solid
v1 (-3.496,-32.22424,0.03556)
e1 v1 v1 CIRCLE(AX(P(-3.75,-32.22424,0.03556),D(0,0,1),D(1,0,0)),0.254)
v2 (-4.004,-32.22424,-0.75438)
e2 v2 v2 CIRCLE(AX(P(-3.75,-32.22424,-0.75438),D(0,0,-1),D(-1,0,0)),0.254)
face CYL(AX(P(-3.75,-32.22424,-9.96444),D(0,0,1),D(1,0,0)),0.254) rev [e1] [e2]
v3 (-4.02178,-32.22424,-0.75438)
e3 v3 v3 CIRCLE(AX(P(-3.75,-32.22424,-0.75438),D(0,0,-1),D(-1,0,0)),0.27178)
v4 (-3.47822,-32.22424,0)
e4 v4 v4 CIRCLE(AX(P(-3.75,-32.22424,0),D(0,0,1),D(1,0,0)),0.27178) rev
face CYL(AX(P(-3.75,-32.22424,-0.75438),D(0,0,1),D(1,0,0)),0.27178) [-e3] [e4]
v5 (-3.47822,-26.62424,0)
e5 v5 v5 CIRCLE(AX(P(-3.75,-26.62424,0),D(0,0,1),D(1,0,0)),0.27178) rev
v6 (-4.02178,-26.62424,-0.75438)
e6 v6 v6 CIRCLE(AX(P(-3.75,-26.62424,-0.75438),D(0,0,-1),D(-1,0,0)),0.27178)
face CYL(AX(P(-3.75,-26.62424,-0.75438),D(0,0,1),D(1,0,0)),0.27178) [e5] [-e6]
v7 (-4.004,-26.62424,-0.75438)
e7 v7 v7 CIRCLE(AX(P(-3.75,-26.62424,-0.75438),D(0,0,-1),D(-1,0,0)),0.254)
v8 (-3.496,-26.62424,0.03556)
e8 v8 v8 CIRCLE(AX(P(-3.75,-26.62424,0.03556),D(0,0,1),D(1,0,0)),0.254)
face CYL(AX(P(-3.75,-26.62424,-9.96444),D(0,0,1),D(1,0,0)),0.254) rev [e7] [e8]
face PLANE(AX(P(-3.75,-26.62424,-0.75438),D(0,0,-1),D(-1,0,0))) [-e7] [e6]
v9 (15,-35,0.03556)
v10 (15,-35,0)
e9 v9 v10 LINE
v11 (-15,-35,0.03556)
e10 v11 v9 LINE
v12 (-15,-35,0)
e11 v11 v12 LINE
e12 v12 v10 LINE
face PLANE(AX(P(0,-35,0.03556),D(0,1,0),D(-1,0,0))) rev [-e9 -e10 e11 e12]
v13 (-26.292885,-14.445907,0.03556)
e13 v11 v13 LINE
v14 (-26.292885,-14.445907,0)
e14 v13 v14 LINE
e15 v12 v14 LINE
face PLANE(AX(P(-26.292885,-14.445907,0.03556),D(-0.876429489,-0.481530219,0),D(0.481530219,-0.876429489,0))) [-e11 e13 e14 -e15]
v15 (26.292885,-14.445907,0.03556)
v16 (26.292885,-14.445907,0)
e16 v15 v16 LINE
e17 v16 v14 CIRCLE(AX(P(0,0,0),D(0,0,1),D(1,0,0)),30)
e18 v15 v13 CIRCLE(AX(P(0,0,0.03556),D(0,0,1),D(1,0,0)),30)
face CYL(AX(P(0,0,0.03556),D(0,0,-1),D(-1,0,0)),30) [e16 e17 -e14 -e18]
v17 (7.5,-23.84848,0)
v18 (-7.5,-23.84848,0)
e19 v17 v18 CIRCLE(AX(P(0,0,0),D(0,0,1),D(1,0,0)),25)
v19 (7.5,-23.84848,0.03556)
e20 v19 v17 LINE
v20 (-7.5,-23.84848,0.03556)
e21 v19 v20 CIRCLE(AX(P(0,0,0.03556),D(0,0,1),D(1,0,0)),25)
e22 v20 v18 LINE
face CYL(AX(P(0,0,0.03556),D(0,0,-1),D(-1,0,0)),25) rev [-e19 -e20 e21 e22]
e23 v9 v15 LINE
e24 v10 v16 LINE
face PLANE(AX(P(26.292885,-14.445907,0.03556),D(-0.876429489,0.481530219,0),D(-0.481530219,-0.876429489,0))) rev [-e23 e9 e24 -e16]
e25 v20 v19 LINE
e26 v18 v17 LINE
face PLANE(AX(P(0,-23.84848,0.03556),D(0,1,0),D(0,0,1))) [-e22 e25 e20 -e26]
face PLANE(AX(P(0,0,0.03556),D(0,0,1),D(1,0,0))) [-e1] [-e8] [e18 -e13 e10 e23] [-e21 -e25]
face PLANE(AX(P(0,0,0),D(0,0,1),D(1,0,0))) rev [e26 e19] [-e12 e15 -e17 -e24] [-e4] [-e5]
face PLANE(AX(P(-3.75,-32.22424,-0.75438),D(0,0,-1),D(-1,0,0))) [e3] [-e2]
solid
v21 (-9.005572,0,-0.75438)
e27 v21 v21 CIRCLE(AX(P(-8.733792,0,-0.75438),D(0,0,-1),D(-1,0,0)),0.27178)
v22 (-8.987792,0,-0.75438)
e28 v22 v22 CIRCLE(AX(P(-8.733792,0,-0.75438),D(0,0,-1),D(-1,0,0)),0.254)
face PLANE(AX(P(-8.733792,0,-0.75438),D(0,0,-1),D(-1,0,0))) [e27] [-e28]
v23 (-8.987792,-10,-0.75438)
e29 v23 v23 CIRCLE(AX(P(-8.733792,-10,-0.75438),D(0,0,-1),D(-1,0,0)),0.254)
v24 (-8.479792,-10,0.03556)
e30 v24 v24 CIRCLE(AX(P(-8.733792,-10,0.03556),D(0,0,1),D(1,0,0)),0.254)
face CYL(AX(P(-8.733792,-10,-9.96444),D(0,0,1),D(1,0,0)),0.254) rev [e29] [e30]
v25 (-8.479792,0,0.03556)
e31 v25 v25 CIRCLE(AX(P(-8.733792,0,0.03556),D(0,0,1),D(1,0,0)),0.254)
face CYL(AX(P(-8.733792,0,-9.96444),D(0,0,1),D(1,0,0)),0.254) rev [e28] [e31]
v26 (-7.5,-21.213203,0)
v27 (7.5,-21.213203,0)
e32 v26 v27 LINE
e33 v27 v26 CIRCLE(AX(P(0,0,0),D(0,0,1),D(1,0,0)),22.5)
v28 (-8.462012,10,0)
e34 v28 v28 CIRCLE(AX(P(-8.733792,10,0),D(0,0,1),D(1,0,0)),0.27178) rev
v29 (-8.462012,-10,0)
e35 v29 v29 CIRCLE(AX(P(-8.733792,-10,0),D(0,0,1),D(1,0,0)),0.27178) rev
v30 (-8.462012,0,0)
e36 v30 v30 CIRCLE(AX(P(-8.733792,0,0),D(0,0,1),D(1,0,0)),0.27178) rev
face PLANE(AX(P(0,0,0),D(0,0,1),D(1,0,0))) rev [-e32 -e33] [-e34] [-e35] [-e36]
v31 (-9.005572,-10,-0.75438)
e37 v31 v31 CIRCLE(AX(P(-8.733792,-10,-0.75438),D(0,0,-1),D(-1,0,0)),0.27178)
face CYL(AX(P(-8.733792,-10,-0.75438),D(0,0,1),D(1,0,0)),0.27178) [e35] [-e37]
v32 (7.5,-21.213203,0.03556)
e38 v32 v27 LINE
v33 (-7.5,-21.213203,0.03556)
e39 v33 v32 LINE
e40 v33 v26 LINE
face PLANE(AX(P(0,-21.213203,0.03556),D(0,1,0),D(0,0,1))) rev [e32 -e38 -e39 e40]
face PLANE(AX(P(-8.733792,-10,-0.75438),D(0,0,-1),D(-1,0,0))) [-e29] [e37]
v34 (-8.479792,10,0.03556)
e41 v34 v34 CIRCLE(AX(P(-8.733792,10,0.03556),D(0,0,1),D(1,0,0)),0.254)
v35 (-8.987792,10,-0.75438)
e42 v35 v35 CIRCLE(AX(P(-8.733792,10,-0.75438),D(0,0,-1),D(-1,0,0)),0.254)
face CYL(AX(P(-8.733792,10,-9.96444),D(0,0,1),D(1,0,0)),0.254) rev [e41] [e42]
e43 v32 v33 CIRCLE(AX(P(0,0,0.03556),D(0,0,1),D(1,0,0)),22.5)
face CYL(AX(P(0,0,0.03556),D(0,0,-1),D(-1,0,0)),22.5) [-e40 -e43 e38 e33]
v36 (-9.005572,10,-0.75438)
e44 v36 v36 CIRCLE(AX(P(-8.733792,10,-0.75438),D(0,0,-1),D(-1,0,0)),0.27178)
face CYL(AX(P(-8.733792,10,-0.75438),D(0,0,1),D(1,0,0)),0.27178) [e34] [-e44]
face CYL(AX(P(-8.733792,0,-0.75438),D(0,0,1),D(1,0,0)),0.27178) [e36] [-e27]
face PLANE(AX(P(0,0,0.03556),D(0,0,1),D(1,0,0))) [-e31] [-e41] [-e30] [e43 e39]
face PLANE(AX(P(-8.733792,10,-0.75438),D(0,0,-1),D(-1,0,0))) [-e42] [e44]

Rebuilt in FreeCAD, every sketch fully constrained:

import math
import FreeCAD as App
import Part
import Sketcher

doc = App.newDocument("Part")
body = doc.addObject("PartDesign::Body", "Body")

# Sketch on XY plane
sketch1 = doc.addObject("Sketcher::SketchObject", "Sketch")
body.addObject(sketch1)
sketch1.AttachmentSupport = (doc.XY_Plane, [""])
sketch1.MapMode = "FlatFace"
sketch1.addGeometry([
    Part.LineSegment(App.Vector(-7.5, -21.213203, 0), App.Vector(7.5, -21.213203, 0)),
    Part.ArcOfCircle(Part.Circle(App.Vector(0, 0, 0), App.Vector(0, 0, 1), 22.5), math.radians(-70.528779), math.radians(250.528779)),
], False)
sketch1.addConstraint([
    Sketcher.Constraint("Coincident", 0, 1, 1, 2),
    Sketcher.Constraint("Coincident", 1, 1, 0, 2),
    Sketcher.Constraint("Horizontal", 0),
    Sketcher.Constraint("Coincident", 1, 3, -1, 1),
    Sketcher.Constraint("Radius", 1, 22.5),
    Sketcher.Constraint("DistanceX", 0, 1, 0, 2, 15.0),
])
pad1 = doc.addObject("PartDesign::Pad", "Pad")
body.addObject(pad1)
pad1.Profile = sketch1
pad1.Length = 0.03556
body2 = doc.addObject("PartDesign::Body", "Body001")

# Sketch on XY plane
sketch2 = doc.addObject("Sketcher::SketchObject", "Sketch001")
body2.addObject(sketch2)
sketch2.AttachmentSupport = (doc.getObject("XY_Plane001"), [""])
sketch2.MapMode = "FlatFace"
sketch2.addGeometry([
    Part.LineSegment(App.Vector(-15, -35, 0), App.Vector(15, -35, 0)),  # 0
    Part.LineSegment(App.Vector(15, -35, 0), App.Vector(26.292885, -14.445907, 0)),  # 1
    Part.ArcOfCircle(Part.Circle(App.Vector(0, 0, 0), App.Vector(0, 0, 1), 30), math.radians(-28.785391), math.radians(208.785391)),  # 2
    Part.LineSegment(App.Vector(-26.292885, -14.445907, 0), App.Vector(-15, -35, 0)),  # 3
    Part.LineSegment(App.Vector(7.5, -23.84848, 0), App.Vector(-7.5, -23.84848, 0)),  # 4
    Part.ArcOfCircle(Part.Circle(App.Vector(0, 0, 0), App.Vector(0, 0, 1), 25), math.radians(-72.542397), math.radians(252.542397)),  # 5
], False)
sketch2.addConstraint([
    Sketcher.Constraint("Coincident", 0, 2, 1, 1),
    Sketcher.Constraint("Tangent", 1, 2, 2, 1),
    Sketcher.Constraint("Tangent", 2, 2, 3, 1),
    Sketcher.Constraint("Coincident", 3, 2, 0, 1),
    Sketcher.Constraint("Coincident", 4, 1, 5, 1),
    Sketcher.Constraint("Coincident", 5, 2, 4, 2),
    Sketcher.Constraint("Horizontal", 0),
    Sketcher.Constraint("Horizontal", 4),
    Sketcher.Constraint("Coincident", 2, 3, -1, 1),
    Sketcher.Constraint("Coincident", 5, 3, -1, 1),
    Sketcher.Constraint("Horizontal", 1, 2, 2, 2),
    Sketcher.Constraint("Radius", 2, 30.0),
    Sketcher.Constraint("Radius", 5, 25.0),
    Sketcher.Constraint("DistanceX", 0, 1, 0, 2, 30.0),
    Sketcher.Constraint("DistanceX", 4, 2, 4, 1, 15.0),
    Sketcher.Constraint("DistanceY", 0, 2, -1, 1, 35.0),
])
pad2 = doc.addObject("PartDesign::Pad", "Pad001")
body2.addObject(pad2)
pad2.Profile = sketch2
pad2.Length = 0.03556
body3 = doc.addObject("PartDesign::Body", "Body002")
body3.AllowCompound = True

# Sketch on XY plane
sketch3 = doc.addObject("Sketcher::SketchObject", "Sketch002")
body3.addObject(sketch3)
sketch3.AttachmentSupport = (doc.getObject("XY_Plane002"), [""])
sketch3.MapMode = "FlatFace"
sketch3.AttachmentOffset = App.Placement(App.Vector(0, 0, 0.03556), App.Rotation())
sketch3.addGeometry([
    Part.ArcOfCircle(Part.Circle(App.Vector(-3.75, -32.22424, 0), App.Vector(0, 0, 1), 0.254), math.radians(0), math.radians(90)),  # 0
    Part.ArcOfCircle(Part.Circle(App.Vector(-3.75, -32.22424, 0), App.Vector(0, 0, 1), 0.254), math.radians(90), math.radians(270)),  # 1
    Part.ArcOfCircle(Part.Circle(App.Vector(-3.75, -32.22424, 0), App.Vector(0, 0, 1), 0.254), math.radians(-90), math.radians(0)),  # 2
    Part.ArcOfCircle(Part.Circle(App.Vector(-3.75, -26.62424, 0), App.Vector(0, 0, 1), 0.254), math.radians(0), math.radians(90)),  # 3
    Part.ArcOfCircle(Part.Circle(App.Vector(-3.75, -26.62424, 0), App.Vector(0, 0, 1), 0.254), math.radians(90), math.radians(270)),  # 4
    Part.ArcOfCircle(Part.Circle(App.Vector(-3.75, -26.62424, 0), App.Vector(0, 0, 1), 0.254), math.radians(-90), math.radians(0)),  # 5
    Part.ArcOfCircle(Part.Circle(App.Vector(-8.733792, -10, 0), App.Vector(0, 0, 1), 0.254), math.radians(0), math.radians(90)),  # 6
    Part.ArcOfCircle(Part.Circle(App.Vector(-8.733792, -10, 0), App.Vector(0, 0, 1), 0.254), math.radians(90), math.radians(270)),  # 7
    Part.ArcOfCircle(Part.Circle(App.Vector(-8.733792, -10, 0), App.Vector(0, 0, 1), 0.254), math.radians(-90), math.radians(0)),  # 8
    Part.Circle(App.Vector(-8.733792, 0, 0), App.Vector(0, 0, 1), 0.254),  # 9
    Part.Circle(App.Vector(-8.733792, 10, 0), App.Vector(0, 0, 1), 0.254),  # 10
], False)
sketch3.addConstraint([
    Sketcher.Constraint("Tangent", 0, 2, 1, 1),
    Sketcher.Constraint("Tangent", 1, 2, 2, 1),
    Sketcher.Constraint("Tangent", 2, 2, 0, 1),
    Sketcher.Constraint("Tangent", 3, 2, 4, 1),
    Sketcher.Constraint("Tangent", 4, 2, 5, 1),
    Sketcher.Constraint("Tangent", 5, 2, 3, 1),
    Sketcher.Constraint("Tangent", 6, 2, 7, 1),
    Sketcher.Constraint("Tangent", 7, 2, 8, 1),
    Sketcher.Constraint("Tangent", 8, 2, 6, 1),
    Sketcher.Constraint("Equal", 2, 3),
    Sketcher.Constraint("Equal", 5, 6),
    Sketcher.Constraint("Equal", 8, 9),
    Sketcher.Constraint("Equal", 9, 10),
    Sketcher.Constraint("Symmetric", 6, 3, 10, 3, -1),
    Sketcher.Constraint("PointOnObject", 9, 3, -1),
    Sketcher.Constraint("Horizontal", 1, 3, 2, 2),
    Sketcher.Constraint("Horizontal", 4, 3, 5, 2),
    Sketcher.Constraint("Horizontal", 7, 3, 8, 2),
    Sketcher.Constraint("Vertical", 2, 3, 3, 3),
    Sketcher.Constraint("Vertical", 8, 3, 9, 3),
    Sketcher.Constraint("Vertical", 5, 3, 0, 2),
    Sketcher.Constraint("Vertical", 0, 2, 1, 2),
    Sketcher.Constraint("Vertical", 1, 2, 3, 2),
    Sketcher.Constraint("Vertical", 3, 2, 4, 2),
    Sketcher.Constraint("Vertical", 10, 3, 6, 2),
    Sketcher.Constraint("Vertical", 6, 2, 7, 2),
    Sketcher.Constraint("Diameter", 9, 0.508),
    Sketcher.Constraint("DistanceY", 6, 3, -1, 1, 10.0),
    Sketcher.Constraint("DistanceY", 2, 3, 3, 3, 5.6),
    Sketcher.Constraint("DistanceX", 0, 3, -1, 1, 3.75),
    Sketcher.Constraint("DistanceY", 0, 3, -1, 1, 32.22424),
    Sketcher.Constraint("DistanceX", 6, 3, -1, 1, 8.733792),
])
pad3 = doc.addObject("PartDesign::Pad", "Pad002")
body3.addObject(pad3)
pad3.Profile = sketch3
pad3.Length = 10
pad3.Reversed = True
doc.recompute()

body4 = doc.addObject("PartDesign::Body", "Body003")
body4.BaseFeature = body3
boolean = doc.addObject("PartDesign::Boolean", "Boolean")
body.addObject(boolean)
boolean.Type = "Cut"
boolean.addObjects([body4])
doc.recompute()

boolean2 = doc.addObject("PartDesign::Boolean", "Boolean001")
body2.addObject(boolean2)
boolean2.Type = "Cut"
boolean2.addObjects([body3])
body.AllowCompound = True
doc.recompute()

boolean3 = doc.addObject("PartDesign::Boolean", "Boolean002")
body.addObject(boolean3)
boolean3.Type = "Fuse"
boolean3.addObjects([body2])

# Sketch on XY plane
sketch4 = doc.addObject("Sketcher::SketchObject", "Sketch003")
body.addObject(sketch4)
sketch4.AttachmentSupport = (doc.XY_Plane, [""])
sketch4.MapMode = "FlatFace"
sketch4.addGeometry([
    Part.Circle(App.Vector(-8.733792, 10, 0), App.Vector(0, 0, 1), 0.27178),  # 0
    Part.Circle(App.Vector(-8.733792, 10, 0), App.Vector(0, 0, 1), 0.254),  # 1
    Part.Circle(App.Vector(-8.733792, 0, 0), App.Vector(0, 0, 1), 0.27178),  # 2
    Part.Circle(App.Vector(-8.733792, 0, 0), App.Vector(0, 0, 1), 0.254),  # 3
    Part.Circle(App.Vector(-8.733792, -10, 0), App.Vector(0, 0, 1), 0.27178),  # 4
    Part.Circle(App.Vector(-8.733792, -10, 0), App.Vector(0, 0, 1), 0.254),  # 5
    Part.Circle(App.Vector(-3.75, -26.62424, 0), App.Vector(0, 0, 1), 0.27178),  # 6
    Part.Circle(App.Vector(-3.75, -26.62424, 0), App.Vector(0, 0, 1), 0.254),  # 7
    Part.Circle(App.Vector(-3.75, -32.22424, 0), App.Vector(0, 0, 1), 0.27178),  # 8
    Part.Circle(App.Vector(-3.75, -32.22424, 0), App.Vector(0, 0, 1), 0.254),  # 9
], False)
sketch4.addConstraint([
    Sketcher.Constraint("Coincident", 1, 3, 0, 3),
    Sketcher.Constraint("Coincident", 3, 3, 2, 3),
    Sketcher.Constraint("Coincident", 5, 3, 4, 3),
    Sketcher.Constraint("Coincident", 7, 3, 6, 3),
    Sketcher.Constraint("Coincident", 9, 3, 8, 3),
    Sketcher.Constraint("Equal", 0, 2),
    Sketcher.Constraint("Equal", 1, 3),
    Sketcher.Constraint("Equal", 2, 4),
    Sketcher.Constraint("Equal", 3, 5),
    Sketcher.Constraint("Equal", 4, 6),
    Sketcher.Constraint("Equal", 5, 7),
    Sketcher.Constraint("Equal", 6, 8),
    Sketcher.Constraint("Equal", 7, 9),
    Sketcher.Constraint("Symmetric", 0, 3, 4, 3, -1),
    Sketcher.Constraint("PointOnObject", 2, 3, -1),
    Sketcher.Constraint("Vertical", 1, 3, 2, 3),
    Sketcher.Constraint("Vertical", 7, 3, 8, 3),
    Sketcher.Constraint("Diameter", 1, 0.508),
    Sketcher.Constraint("DistanceY", -1, 1, 0, 3, 10.0),
    Sketcher.Constraint("DistanceY", 8, 3, 6, 3, 5.6),
    Sketcher.Constraint("Diameter", 0, 0.54356),
    Sketcher.Constraint("DistanceX", 6, 3, -1, 1, 3.75),
    Sketcher.Constraint("DistanceY", 6, 3, -1, 1, 26.62424),
    Sketcher.Constraint("DistanceX", 0, 3, -1, 1, 8.733792),
])
pad4 = doc.addObject("PartDesign::Pad", "Pad003")
body.addObject(pad4)
pad4.Profile = sketch4
pad4.Length = 0.75438
pad4.Reversed = True

doc.recompute()
